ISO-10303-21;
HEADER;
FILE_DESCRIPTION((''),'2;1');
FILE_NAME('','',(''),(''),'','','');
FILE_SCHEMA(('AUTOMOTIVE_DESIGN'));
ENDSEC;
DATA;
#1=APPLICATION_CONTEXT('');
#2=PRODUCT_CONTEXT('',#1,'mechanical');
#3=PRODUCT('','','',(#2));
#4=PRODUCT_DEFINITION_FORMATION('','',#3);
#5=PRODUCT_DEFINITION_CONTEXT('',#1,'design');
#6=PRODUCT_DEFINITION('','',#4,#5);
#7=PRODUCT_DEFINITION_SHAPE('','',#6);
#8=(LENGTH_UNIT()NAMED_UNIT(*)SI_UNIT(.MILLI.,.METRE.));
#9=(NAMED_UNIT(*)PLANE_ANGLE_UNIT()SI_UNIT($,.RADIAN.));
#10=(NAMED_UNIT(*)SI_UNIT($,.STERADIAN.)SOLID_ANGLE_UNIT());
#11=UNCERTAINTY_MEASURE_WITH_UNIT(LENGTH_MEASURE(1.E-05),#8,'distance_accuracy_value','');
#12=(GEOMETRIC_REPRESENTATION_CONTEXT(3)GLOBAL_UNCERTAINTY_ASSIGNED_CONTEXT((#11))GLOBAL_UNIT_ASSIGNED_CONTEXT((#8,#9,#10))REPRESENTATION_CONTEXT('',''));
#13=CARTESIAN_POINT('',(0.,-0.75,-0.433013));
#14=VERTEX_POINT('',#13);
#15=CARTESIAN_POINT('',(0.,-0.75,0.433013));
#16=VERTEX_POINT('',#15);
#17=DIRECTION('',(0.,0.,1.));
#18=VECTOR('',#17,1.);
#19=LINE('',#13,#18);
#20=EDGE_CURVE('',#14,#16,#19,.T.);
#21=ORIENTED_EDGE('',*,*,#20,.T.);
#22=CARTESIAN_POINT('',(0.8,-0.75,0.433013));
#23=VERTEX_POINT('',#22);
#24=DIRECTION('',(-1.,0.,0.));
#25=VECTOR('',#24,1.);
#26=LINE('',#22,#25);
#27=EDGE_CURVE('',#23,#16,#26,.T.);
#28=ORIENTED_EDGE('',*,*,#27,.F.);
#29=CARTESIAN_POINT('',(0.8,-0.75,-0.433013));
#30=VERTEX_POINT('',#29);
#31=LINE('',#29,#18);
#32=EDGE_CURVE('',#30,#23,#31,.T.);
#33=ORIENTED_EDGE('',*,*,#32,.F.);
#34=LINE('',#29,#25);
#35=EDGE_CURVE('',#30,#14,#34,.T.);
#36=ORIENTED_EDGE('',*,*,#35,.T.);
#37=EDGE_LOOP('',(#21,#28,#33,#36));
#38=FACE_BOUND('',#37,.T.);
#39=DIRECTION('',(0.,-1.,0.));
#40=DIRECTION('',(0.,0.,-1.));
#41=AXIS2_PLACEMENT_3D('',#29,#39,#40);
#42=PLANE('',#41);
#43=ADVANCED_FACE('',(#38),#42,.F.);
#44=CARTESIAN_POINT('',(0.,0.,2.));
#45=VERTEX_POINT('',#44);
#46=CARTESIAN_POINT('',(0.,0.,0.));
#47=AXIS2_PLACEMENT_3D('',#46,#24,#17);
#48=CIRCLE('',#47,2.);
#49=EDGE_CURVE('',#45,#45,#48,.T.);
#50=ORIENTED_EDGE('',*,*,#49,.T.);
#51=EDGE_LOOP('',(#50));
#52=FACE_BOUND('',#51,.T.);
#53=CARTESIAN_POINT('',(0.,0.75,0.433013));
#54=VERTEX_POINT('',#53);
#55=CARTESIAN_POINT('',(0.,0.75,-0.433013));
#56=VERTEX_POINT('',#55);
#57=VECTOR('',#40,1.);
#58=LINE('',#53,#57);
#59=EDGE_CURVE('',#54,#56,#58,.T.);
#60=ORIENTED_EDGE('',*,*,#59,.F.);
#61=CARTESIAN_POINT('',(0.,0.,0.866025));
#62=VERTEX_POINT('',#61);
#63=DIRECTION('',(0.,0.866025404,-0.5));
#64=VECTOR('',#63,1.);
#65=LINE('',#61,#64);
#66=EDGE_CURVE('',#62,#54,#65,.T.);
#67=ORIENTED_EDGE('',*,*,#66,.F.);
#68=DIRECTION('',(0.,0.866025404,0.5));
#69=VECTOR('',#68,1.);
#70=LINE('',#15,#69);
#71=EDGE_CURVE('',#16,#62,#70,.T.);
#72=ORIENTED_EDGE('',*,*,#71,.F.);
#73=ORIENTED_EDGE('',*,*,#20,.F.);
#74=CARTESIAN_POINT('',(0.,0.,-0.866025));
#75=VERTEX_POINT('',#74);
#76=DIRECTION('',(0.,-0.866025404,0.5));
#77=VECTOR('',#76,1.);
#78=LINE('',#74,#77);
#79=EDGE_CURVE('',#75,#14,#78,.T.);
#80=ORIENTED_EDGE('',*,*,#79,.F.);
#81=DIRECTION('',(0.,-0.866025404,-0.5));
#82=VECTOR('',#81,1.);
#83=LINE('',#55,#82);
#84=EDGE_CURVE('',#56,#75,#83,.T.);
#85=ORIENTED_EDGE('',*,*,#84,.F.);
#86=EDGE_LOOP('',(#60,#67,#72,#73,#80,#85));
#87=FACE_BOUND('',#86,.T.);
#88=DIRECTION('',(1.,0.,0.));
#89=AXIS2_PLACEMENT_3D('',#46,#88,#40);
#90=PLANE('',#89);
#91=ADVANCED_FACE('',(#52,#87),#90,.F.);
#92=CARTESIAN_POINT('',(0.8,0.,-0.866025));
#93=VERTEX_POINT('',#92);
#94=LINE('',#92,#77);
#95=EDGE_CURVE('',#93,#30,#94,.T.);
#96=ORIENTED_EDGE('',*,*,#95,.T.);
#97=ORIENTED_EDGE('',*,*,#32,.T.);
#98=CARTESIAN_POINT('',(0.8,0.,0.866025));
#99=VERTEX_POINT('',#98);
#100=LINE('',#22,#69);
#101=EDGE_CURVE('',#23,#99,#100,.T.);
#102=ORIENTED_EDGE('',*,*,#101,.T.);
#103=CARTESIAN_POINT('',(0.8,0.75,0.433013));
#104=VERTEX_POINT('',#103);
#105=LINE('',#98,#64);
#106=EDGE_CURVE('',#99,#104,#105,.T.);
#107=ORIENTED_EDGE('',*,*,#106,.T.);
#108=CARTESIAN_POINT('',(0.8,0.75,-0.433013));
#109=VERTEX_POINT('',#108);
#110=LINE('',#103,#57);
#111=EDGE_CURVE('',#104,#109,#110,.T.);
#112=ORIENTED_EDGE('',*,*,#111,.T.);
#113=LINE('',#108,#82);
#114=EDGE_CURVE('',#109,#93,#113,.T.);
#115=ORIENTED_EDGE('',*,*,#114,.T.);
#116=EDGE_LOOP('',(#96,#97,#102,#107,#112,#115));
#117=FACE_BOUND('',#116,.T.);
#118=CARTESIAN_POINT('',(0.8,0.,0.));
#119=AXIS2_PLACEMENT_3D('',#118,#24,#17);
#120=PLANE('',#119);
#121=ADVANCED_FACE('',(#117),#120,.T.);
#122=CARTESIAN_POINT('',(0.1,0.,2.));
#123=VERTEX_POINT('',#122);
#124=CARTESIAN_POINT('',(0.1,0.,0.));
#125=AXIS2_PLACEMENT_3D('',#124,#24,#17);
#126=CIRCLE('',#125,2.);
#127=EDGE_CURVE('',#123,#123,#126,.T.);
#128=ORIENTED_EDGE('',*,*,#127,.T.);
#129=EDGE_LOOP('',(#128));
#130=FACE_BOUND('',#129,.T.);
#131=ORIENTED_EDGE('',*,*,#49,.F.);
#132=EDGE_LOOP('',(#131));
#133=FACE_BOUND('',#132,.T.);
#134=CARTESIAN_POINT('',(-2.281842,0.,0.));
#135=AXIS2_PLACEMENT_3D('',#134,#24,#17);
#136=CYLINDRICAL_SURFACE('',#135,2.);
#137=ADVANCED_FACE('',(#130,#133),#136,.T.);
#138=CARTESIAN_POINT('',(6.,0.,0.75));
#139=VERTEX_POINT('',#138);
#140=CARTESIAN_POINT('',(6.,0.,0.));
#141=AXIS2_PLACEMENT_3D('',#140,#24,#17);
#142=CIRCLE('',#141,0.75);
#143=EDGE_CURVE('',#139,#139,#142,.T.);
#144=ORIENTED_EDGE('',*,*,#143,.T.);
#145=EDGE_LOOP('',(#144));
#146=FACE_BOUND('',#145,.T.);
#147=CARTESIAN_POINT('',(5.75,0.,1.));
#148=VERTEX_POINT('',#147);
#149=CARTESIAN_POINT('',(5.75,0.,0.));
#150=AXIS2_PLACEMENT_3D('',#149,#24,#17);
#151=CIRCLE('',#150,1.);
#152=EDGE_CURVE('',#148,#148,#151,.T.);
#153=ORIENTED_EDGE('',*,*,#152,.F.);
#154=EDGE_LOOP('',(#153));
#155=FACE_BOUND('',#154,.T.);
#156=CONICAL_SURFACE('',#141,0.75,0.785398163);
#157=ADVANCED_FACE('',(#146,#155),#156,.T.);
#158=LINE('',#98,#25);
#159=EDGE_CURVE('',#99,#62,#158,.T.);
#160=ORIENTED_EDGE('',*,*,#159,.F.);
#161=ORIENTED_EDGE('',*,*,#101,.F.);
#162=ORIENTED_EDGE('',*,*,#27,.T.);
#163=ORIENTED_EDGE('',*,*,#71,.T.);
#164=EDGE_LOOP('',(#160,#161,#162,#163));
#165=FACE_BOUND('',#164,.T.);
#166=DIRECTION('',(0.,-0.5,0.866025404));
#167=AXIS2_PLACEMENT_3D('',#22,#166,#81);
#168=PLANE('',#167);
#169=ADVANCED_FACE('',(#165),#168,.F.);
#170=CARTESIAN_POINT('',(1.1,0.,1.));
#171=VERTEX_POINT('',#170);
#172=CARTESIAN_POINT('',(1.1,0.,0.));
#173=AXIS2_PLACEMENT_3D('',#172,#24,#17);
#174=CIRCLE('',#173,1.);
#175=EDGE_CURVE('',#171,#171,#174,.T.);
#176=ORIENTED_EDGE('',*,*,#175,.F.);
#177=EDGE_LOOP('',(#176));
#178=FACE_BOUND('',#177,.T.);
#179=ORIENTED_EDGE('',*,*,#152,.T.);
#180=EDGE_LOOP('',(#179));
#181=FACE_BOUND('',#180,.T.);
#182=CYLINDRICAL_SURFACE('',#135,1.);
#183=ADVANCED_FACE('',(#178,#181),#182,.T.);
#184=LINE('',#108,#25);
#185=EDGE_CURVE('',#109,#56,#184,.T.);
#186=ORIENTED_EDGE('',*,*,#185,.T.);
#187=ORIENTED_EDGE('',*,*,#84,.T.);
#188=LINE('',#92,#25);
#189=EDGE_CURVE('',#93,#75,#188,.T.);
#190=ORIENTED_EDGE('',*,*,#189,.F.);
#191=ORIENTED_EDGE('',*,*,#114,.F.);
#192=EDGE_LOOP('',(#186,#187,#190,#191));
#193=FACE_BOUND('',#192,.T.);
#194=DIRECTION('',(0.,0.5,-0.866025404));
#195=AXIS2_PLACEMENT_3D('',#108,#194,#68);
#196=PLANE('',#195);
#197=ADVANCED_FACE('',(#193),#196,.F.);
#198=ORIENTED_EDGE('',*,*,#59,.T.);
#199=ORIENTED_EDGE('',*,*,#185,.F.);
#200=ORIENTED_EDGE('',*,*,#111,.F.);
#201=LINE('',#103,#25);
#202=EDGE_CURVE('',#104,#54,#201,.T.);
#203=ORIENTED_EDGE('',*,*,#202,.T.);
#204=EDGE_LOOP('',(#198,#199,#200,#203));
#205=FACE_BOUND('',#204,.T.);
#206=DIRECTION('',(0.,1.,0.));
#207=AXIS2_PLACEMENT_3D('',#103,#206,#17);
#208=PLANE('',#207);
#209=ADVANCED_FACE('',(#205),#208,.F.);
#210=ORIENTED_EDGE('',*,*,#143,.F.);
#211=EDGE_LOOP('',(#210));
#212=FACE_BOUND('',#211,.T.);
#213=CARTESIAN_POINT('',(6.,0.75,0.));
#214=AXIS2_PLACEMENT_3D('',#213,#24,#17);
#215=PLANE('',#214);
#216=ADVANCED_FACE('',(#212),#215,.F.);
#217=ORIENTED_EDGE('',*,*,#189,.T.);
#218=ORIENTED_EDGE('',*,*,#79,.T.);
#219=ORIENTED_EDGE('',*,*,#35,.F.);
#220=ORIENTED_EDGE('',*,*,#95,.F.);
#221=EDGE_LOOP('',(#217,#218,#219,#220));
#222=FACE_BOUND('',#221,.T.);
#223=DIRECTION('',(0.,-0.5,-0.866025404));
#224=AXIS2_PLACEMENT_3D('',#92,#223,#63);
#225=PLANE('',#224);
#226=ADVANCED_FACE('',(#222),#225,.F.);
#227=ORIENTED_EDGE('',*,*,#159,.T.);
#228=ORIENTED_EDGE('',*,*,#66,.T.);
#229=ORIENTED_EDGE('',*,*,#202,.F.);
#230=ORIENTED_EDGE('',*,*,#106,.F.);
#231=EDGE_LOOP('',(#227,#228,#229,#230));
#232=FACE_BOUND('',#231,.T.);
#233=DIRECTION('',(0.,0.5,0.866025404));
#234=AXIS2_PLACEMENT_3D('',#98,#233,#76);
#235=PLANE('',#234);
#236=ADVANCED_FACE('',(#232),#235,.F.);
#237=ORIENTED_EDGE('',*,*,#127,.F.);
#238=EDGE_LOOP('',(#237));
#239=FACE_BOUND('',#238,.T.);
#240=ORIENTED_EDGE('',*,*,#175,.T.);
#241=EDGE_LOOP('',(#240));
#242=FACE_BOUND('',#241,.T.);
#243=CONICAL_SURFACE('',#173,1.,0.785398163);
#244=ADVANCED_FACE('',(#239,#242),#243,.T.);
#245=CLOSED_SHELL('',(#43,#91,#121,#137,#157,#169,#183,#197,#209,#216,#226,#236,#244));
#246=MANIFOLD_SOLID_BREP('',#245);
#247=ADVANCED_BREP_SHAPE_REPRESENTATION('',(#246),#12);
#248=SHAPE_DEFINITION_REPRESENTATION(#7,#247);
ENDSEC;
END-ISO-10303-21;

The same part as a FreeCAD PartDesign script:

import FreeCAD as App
import Part
import Sketcher

V = App.Vector
Q = App.Units.Quantity


def add_polygon(sketch, points):
    """Adds a closed chain of lines whose ends are joined by coincident constraints."""
    first, n = sketch.GeometryCount, len(points)
    for a, b in zip(points, points[1:] + points[:1]):
        sketch.addGeometry(Part.LineSegment(App.Vector(*a, 0), App.Vector(*b, 0)), False)
    for i in range(n):
        sketch.addConstraint(Sketcher.Constraint("Coincident", first + i, 2, first + (i + 1) % n, 1))

doc = App.newDocument("Part")
body = doc.addObject("PartDesign::Body", "Body")

# Sketch on XY plane
sketch1 = body.newObject("Sketcher::SketchObject", "Sketch")
sketch1.AttachmentSupport = (doc.getObject("XY_Plane"), [""])
sketch1.MapMode = "FlatFace"
add_polygon(sketch1, [(0, 2), (0, 0), (6, 0), (6, 0.75), (5.75, 1), (1.1, 1), (0.1, 2)])  # lines 0-6
sketch1.addConstraint([
    Sketcher.Constraint("Vertical", 0),
    Sketcher.Constraint("Horizontal", 1),
    Sketcher.Constraint("Vertical", 2),
    Sketcher.Constraint("Horizontal", 4),
    Sketcher.Constraint("Horizontal", 6),
    Sketcher.Constraint("Coincident", 0, 2, -1, 1),
    Sketcher.Constraint("Parallel", 3, 5),
    Sketcher.Constraint("DistanceX", 1, 1, 1, 2, 6.0),
    Sketcher.Constraint("DistanceY", 0, 2, 0, 1, 2.0),
    Sketcher.Constraint("Angle", 3, Q("135 deg")),
    Sketcher.Constraint("DistanceX", 6, 2, 6, 1, 0.1),
    Sketcher.Constraint("DistanceY", -1, 1, 3, 2, 1.0),
    Sketcher.Constraint("DistanceX", 4, 2, 4, 1, 4.65),
])
revolution = body.newObject("PartDesign::Revolution", "Revolution")
revolution.Profile = sketch1
revolution.ReferenceAxis = (sketch1, ["H_Axis"])
revolution.Angle = 360

# Sketch on YZ plane
sketch2 = body.newObject("Sketcher::SketchObject", "Sketch001")
sketch2.AttachmentSupport = (doc.getObject("YZ_Plane"), [""])
sketch2.MapMode = "FlatFace"
add_polygon(sketch2, [(-0.8, 0.4), (0, 0.9), (0.8, 0.4), (0.8, -0.4), (0, -0.9), (-0.8, -0.4)])  # lines 0-5
sketch2.addConstraint([
    Sketcher.Constraint("Vertical", 2),
    Sketcher.Constraint("Vertical", 5),
    Sketcher.Constraint("Symmetric", 0, 2, 3, 2, -1, 1),
    Sketcher.Constraint("Symmetric", 1, 2, 4, 2, -1, 1),
    Sketcher.Constraint("PointOnObject", 0, 2, -2),
    Sketcher.Constraint("Parallel", 0, 3),
    Sketcher.Constraint("Horizontal", 2, 2, 4, 2),
    Sketcher.Constraint("Angle", 0, Q("30 deg")),
    Sketcher.Constraint("DistanceX", 4, 2, 2, 2, 1.5),
    Sketcher.Constraint("DistanceY", 2, 2, 2, 1, 0.866025),
])
pocket1 = body.newObject("PartDesign::Pocket", "Pocket")
pocket1.Profile = sketch2
pocket1.Length = 0.8
pocket1.Reversed = True

doc.recompute()
